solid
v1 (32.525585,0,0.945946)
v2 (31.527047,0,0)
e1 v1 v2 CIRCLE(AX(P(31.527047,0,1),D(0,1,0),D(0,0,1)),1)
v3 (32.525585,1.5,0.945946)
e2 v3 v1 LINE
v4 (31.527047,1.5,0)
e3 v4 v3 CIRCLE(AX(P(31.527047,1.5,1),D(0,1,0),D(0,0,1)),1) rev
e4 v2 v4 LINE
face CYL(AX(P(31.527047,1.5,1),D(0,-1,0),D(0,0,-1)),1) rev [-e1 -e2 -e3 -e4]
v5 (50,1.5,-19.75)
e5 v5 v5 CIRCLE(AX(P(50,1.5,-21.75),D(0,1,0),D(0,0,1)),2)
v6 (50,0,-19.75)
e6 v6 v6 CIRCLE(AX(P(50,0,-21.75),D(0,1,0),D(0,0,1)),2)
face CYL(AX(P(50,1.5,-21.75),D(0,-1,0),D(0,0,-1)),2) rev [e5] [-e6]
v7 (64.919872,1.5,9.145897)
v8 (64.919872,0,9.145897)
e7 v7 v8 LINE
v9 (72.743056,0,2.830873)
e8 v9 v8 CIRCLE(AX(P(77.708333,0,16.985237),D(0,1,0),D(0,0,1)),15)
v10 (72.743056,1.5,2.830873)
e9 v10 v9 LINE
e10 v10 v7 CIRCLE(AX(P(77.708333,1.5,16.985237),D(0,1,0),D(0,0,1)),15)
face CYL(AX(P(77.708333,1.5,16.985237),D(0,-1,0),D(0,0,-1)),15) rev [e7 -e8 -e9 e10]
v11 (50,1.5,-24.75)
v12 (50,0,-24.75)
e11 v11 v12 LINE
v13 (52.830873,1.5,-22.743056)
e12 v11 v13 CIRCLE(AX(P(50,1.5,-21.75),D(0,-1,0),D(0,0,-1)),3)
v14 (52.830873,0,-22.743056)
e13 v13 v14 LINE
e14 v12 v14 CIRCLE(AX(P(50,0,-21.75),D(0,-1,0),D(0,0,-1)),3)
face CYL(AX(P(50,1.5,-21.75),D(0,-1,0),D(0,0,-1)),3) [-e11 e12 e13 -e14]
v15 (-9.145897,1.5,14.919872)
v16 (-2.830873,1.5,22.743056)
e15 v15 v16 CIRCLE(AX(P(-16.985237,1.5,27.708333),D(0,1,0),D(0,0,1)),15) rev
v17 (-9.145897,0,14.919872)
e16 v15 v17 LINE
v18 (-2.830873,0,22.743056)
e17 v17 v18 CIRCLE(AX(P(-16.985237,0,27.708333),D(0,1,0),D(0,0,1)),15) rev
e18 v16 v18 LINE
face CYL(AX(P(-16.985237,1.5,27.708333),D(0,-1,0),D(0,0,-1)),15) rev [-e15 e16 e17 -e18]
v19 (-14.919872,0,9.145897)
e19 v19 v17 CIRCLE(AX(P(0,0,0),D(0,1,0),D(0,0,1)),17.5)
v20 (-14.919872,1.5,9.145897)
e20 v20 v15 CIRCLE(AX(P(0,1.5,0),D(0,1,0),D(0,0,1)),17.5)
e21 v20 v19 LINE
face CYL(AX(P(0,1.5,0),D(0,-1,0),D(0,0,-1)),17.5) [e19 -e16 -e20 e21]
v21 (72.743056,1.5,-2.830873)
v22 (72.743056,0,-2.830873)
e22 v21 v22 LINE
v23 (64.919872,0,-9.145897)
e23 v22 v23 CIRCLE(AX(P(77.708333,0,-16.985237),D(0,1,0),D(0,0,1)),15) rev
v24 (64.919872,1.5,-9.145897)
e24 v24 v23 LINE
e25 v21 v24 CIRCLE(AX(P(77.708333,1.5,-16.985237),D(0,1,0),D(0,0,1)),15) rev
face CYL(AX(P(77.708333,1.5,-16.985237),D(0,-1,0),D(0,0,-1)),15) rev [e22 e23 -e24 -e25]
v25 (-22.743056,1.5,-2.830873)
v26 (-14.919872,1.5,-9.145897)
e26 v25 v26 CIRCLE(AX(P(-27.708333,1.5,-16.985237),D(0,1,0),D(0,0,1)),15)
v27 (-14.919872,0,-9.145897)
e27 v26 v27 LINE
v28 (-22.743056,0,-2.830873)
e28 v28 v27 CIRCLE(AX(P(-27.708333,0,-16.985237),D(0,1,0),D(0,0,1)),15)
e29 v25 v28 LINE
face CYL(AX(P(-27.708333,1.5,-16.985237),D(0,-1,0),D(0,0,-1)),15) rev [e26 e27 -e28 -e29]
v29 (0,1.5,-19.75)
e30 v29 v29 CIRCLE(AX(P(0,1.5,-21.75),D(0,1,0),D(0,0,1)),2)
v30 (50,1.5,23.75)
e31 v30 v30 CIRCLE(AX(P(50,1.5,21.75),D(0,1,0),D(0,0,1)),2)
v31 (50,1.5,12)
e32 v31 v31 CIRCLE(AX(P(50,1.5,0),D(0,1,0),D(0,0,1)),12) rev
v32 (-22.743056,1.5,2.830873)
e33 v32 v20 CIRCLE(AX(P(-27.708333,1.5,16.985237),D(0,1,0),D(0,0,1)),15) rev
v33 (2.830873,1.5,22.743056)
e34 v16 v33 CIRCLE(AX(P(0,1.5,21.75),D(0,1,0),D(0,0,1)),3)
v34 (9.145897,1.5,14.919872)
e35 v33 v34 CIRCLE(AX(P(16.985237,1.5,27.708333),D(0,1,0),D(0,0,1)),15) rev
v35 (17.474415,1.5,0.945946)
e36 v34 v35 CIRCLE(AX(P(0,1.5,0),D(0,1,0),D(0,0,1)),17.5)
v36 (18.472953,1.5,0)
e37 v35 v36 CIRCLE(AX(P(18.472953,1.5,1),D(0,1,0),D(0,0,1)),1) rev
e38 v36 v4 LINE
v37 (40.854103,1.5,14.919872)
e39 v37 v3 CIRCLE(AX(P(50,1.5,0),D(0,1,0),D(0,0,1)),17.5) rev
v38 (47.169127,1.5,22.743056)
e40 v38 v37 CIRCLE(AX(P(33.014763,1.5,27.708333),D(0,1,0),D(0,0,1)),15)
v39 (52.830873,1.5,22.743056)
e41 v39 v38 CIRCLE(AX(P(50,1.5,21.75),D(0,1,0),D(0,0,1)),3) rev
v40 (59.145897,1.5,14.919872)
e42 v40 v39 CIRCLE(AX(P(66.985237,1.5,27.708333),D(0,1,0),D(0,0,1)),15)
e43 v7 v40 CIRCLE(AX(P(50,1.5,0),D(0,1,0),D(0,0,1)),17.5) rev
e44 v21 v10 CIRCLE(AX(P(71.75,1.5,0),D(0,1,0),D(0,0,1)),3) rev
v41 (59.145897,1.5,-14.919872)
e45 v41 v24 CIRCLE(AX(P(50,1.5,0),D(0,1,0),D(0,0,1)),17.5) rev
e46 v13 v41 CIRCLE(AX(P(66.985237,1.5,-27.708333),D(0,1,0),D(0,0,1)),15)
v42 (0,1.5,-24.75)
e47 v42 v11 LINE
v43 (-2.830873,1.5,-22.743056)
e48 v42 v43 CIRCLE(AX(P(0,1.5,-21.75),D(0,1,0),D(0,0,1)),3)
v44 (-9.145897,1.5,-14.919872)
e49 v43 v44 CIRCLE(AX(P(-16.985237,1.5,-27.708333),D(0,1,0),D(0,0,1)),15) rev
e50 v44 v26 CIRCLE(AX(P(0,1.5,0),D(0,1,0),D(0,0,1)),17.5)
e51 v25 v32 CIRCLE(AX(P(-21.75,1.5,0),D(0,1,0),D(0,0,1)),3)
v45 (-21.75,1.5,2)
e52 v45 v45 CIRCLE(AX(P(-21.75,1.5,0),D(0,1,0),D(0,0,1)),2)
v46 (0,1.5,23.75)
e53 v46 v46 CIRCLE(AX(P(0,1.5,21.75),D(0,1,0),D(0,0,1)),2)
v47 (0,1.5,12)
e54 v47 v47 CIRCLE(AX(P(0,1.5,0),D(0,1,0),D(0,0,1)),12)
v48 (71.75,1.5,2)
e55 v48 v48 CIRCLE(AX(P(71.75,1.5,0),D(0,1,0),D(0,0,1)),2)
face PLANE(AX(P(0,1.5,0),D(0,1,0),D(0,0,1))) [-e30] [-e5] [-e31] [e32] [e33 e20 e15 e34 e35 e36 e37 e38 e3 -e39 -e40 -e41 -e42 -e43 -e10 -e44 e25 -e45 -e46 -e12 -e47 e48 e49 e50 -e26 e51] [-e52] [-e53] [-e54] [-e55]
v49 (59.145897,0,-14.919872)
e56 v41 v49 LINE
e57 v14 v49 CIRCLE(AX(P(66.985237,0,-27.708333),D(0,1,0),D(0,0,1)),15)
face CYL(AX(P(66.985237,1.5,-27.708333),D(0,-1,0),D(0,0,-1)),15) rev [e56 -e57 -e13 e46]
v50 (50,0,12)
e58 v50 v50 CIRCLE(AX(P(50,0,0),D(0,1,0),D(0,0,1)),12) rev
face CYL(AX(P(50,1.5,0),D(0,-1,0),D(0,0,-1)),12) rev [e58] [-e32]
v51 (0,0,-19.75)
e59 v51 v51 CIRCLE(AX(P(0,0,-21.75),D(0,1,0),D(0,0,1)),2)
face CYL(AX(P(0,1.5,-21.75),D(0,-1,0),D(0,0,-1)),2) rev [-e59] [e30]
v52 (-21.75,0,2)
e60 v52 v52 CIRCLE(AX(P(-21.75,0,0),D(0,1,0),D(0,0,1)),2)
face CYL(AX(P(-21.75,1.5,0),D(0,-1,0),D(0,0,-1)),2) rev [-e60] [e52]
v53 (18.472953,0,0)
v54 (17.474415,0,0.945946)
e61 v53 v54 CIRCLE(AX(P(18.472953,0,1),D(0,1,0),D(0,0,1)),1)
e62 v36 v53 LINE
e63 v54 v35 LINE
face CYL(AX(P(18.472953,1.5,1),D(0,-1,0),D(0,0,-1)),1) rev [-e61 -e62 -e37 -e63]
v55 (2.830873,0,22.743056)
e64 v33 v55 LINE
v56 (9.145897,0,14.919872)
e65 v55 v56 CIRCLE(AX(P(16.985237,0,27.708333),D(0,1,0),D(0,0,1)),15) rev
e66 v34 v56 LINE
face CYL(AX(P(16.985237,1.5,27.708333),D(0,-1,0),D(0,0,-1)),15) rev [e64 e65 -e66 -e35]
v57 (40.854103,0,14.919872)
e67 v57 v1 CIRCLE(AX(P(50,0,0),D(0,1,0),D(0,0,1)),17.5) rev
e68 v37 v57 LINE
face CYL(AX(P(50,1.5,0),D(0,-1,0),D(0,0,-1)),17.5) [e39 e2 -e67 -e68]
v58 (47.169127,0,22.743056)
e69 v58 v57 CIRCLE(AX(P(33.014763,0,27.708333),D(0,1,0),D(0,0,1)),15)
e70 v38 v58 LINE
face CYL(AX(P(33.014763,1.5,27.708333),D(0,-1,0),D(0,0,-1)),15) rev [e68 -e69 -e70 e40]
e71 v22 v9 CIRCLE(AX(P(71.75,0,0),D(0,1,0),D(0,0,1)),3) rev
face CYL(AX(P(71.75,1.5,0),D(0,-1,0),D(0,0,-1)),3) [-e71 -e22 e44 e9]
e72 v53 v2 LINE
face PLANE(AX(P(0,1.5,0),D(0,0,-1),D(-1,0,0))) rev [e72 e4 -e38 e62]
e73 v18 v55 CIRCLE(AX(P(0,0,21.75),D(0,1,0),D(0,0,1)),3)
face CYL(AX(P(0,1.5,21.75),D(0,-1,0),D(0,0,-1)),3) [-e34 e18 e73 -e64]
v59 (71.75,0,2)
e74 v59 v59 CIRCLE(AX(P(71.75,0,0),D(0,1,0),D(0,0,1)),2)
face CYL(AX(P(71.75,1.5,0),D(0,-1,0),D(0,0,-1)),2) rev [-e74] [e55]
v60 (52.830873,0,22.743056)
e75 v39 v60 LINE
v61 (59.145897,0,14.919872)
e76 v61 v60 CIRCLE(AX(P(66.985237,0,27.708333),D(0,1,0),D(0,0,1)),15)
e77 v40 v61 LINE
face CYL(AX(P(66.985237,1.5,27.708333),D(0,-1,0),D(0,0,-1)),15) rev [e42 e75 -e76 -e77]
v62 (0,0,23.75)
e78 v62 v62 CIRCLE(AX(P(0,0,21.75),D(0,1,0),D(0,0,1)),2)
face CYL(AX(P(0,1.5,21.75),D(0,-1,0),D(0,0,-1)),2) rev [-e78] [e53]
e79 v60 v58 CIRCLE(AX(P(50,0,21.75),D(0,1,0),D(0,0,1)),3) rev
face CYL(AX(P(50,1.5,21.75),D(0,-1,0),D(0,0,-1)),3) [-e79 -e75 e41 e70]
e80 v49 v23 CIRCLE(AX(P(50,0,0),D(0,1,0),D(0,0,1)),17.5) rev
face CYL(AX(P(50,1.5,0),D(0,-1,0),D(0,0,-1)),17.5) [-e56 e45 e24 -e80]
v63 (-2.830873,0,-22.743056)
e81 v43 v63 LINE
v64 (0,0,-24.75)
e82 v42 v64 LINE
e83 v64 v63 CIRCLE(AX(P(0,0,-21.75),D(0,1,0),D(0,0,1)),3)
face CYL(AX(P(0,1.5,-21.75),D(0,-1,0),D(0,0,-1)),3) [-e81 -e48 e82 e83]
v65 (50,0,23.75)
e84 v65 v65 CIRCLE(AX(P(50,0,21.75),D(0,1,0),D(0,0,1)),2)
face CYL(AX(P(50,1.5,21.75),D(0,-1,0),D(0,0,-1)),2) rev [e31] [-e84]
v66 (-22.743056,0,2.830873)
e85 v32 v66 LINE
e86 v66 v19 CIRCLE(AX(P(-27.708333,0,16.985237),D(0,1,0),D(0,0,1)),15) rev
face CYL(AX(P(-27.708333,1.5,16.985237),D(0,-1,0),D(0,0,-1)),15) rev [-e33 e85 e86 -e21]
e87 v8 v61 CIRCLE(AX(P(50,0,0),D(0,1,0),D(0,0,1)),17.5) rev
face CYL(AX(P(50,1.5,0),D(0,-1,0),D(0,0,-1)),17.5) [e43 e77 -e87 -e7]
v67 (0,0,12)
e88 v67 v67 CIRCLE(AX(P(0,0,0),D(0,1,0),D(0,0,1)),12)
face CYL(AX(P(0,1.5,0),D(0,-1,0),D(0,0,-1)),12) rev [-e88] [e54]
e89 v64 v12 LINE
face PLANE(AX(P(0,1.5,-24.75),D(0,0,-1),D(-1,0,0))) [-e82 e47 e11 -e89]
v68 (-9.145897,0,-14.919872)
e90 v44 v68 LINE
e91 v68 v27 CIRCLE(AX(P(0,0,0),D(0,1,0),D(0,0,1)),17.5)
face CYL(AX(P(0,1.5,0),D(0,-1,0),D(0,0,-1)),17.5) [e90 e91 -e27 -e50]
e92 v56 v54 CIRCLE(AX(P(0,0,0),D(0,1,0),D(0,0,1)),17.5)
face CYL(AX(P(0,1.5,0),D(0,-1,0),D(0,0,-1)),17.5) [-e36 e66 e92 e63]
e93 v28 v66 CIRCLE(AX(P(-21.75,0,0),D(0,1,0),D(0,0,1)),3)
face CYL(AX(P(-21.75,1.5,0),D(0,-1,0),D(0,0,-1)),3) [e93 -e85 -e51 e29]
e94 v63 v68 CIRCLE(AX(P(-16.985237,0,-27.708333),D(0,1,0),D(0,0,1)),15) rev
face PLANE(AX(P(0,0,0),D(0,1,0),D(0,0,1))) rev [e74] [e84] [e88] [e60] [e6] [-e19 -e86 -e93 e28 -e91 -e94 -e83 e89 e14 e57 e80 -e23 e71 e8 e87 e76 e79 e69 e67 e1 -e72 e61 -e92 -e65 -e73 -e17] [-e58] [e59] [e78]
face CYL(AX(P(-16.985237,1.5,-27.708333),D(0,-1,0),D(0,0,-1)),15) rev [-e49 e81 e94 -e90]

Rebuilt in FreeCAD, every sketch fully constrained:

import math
import FreeCAD as App
import Part
import Sketcher

V = App.Vector
Q = App.Units.Quantity


def edges_at(feature, points):
    """Names of the edges that pass closest to the given points."""
    edges = feature.Shape.Edges
    near = lambda p: min(range(len(edges)), key=lambda i: edges[i].distToShape(Part.Vertex(*p))[0])
    return sorted({f"Edge{near(p) + 1}" for p in points})

doc = App.newDocument("Part")
body = doc.addObject("PartDesign::Body", "Body")

# Sketch on XZ plane
sketch1 = doc.addObject("Sketcher::SketchObject", "Sketch")
body.addObject(sketch1)
sketch1.AttachmentSupport = (doc.XZ_Plane, [""])
sketch1.MapMode = "FlatFace"
sketch1.addGeometry(Part.LineSegment(V(50, -24.8, 0), V(0, -24.8, 0)), False)
sketch1.addGeometry(Part.ArcOfCircle(Part.Circle(V(0, -21.7, 0), V(0, 0, 1), 3), math.radians(-161), math.radians(-90)), False)
sketch1.addGeometry(Part.ArcOfCircle(Part.Circle(V(-17, -27.7, 0), V(0, 0, 1), 15), math.radians(19), math.radians(58)), False)
sketch1.addGeometry(Part.ArcOfCircle(Part.Circle(V(0, 0, 0), V(0, 0, 1), 17.5), math.radians(-148), math.radians(-122)), False)
sketch1.addGeometry(Part.ArcOfCircle(Part.Circle(V(-27.7, -17, 0), V(0, 0, 1), 15), math.radians(32), math.radians(71)), False)
sketch1.addGeometry(Part.ArcOfCircle(Part.Circle(V(-21.8, 0, 0), V(0, 0, 1), 3), math.radians(109), math.radians(251)), False)
sketch1.addGeometry(Part.ArcOfCircle(Part.Circle(V(-27.7, 17, 0), V(0, 0, 1), 15), math.radians(-71), math.radians(-32)), False)
sketch1.addGeometry(Part.ArcOfCircle(Part.Circle(V(0, 0, 0), V(0, 0, 1), 17.5), math.radians(122), math.radians(148)), False)
sketch1.addGeometry(Part.ArcOfCircle(Part.Circle(V(-17, 27.7, 0), V(0, 0, 1), 15), math.radians(-58), math.radians(-19)), False)
sketch1.addGeometry(Part.ArcOfCircle(Part.Circle(V(0, 21.8, 0), V(0, 0, 1), 3), math.radians(19), math.radians(161)), False)
sketch1.addGeometry(Part.ArcOfCircle(Part.Circle(V(17, 27.7, 0), V(0, 0, 1), 15), math.radians(-161), math.radians(-122)), False)
sketch1.addGeometry(Part.ArcOfCircle(Part.Circle(V(0, 0, 0), V(0, 0, 1), 17.5), math.radians(0), math.radians(58)), False)
sketch1.addGeometry(Part.LineSegment(V(17.5, 0, 0), V(32.5, 0, 0)), False)
sketch1.addGeometry(Part.ArcOfCircle(Part.Circle(V(50, 0, 0), V(0, 0, 1), 17.5), math.radians(122), math.radians(180)), False)
sketch1.addGeometry(Part.ArcOfCircle(Part.Circle(V(33, 27.7, 0), V(0, 0, 1), 15), math.radians(-58), math.radians(-19)), False)
sketch1.addGeometry(Part.ArcOfCircle(Part.Circle(V(50, 21.8, 0), V(0, 0, 1), 3), math.radians(19), math.radians(161)), False)
sketch1.addGeometry(Part.ArcOfCircle(Part.Circle(V(67, 27.7, 0), V(0, 0, 1), 15), math.radians(-161), math.radians(-122)), False)
sketch1.addGeometry(Part.ArcOfCircle(Part.Circle(V(50, 0, 0), V(0, 0, 1), 17.5), math.radians(32), math.radians(58)), False)
sketch1.addGeometry(Part.ArcOfCircle(Part.Circle(V(77.7, 17, 0), V(0, 0, 1), 15), math.radians(-148), math.radians(-109)), False)
sketch1.addGeometry(Part.ArcOfCircle(Part.Circle(V(71.8, 0, 0), V(0, 0, 1), 3), math.radians(-71), math.radians(71)), False)
sketch1.addGeometry(Part.ArcOfCircle(Part.Circle(V(77.7, -17, 0), V(0, 0, 1), 15), math.radians(109), math.radians(148)), False)
sketch1.addGeometry(Part.ArcOfCircle(Part.Circle(V(50, 0, 0), V(0, 0, 1), 17.5), math.radians(-58), math.radians(-32)), False)
sketch1.addGeometry(Part.ArcOfCircle(Part.Circle(V(67, -27.7, 0), V(0, 0, 1), 15), math.radians(122), math.radians(161)), False)
sketch1.addGeometry(Part.ArcOfCircle(Part.Circle(V(50, -21.7, 0), V(0, 0, 1), 3), math.radians(-90), math.radians(-19)), False)
sketch1.addGeometry(Part.Circle(V(0, 21.8, 0), V(0, 0, 1), 2), False)
sketch1.addGeometry(Part.Circle(V(50, 21.8, 0), V(0, 0, 1), 2), False)
sketch1.addGeometry(Part.Circle(V(-21.8, 0, 0), V(0, 0, 1), 2), False)
sketch1.addGeometry(Part.Circle(V(0, 0, 0), V(0, 0, 1), 12), False)
sketch1.addGeometry(Part.Circle(V(0, -21.8, 0), V(0, 0, 1), 2), False)
sketch1.addGeometry(Part.Circle(V(50, 0, 0), V(0, 0, 1), 12), False)
sketch1.addGeometry(Part.Circle(V(71.8, 0, 0), V(0, 0, 1), 2), False)
sketch1.addGeometry(Part.Circle(V(50, -21.8, 0), V(0, 0, 1), 2), False)
sketch1.addConstraint(Sketcher.Constraint("Tangent", 0, 2, 1, 2))
sketch1.addConstraint(Sketcher.Constraint("Tangent", 1, 1, 2, 1))
sketch1.addConstraint(Sketcher.Constraint("Tangent", 2, 2, 3, 2))
sketch1.addConstraint(Sketcher.Constraint("Tangent", 3, 1, 4, 1))
sketch1.addConstraint(Sketcher.Constraint("Tangent", 4, 2, 5, 2))
sketch1.addConstraint(Sketcher.Constraint("Tangent", 5, 1, 6, 1))
sketch1.addConstraint(Sketcher.Constraint("Tangent", 6, 2, 7, 2))
sketch1.addConstraint(Sketcher.Constraint("Tangent", 7, 1, 8, 1))
sketch1.addConstraint(Sketcher.Constraint("Tangent", 8, 2, 9, 2))
sketch1.addConstraint(Sketcher.Constraint("Tangent", 9, 1, 10, 1))
sketch1.addConstraint(Sketcher.Constraint("Tangent", 10, 2, 11, 2))
sketch1.addConstraint(Sketcher.Constraint("Coincident", 11, 1, 12, 1))
sketch1.addConstraint(Sketcher.Constraint("Coincident", 12, 2, 13, 2))
sketch1.addConstraint(Sketcher.Constraint("Tangent", 13, 1, 14, 1))
sketch1.addConstraint(Sketcher.Constraint("Tangent", 14, 2, 15, 2))
sketch1.addConstraint(Sketcher.Constraint("Tangent", 15, 1, 16, 1))
sketch1.addConstraint(Sketcher.Constraint("Tangent", 16, 2, 17, 2))
sketch1.addConstraint(Sketcher.Constraint("Tangent", 17, 1, 18, 1))
sketch1.addConstraint(Sketcher.Constraint("Tangent", 18, 2, 19, 2))
sketch1.addConstraint(Sketcher.Constraint("Tangent", 19, 1, 20, 1))
sketch1.addConstraint(Sketcher.Constraint("Tangent", 20, 2, 21, 2))
sketch1.addConstraint(Sketcher.Constraint("Tangent", 21, 1, 22, 1))
sketch1.addConstraint(Sketcher.Constraint("Tangent", 22, 2, 23, 2))
sketch1.addConstraint(Sketcher.Constraint("Tangent", 23, 1, 0, 1))
sketch1.addConstraint(Sketcher.Constraint("Horizontal", 0))
sketch1.addConstraint(Sketcher.Constraint("Horizontal", 12))
sketch1.addConstraint(Sketcher.Constraint("Coincident", 3, 3, -1, 1))
sketch1.addConstraint(Sketcher.Constraint("Coincident", 7, 3, -1, 1))
sketch1.addConstraint(Sketcher.Constraint("Coincident", 11, 3, -1, 1))
sketch1.addConstraint(Sketcher.Constraint("Coincident", 27, 3, -1, 1))
sketch1.addConstraint(Sketcher.Constraint("Coincident", 17, 3, 13, 3))
sketch1.addConstraint(Sketcher.Constraint("Coincident", 21, 3, 13, 3))
sketch1.addConstraint(Sketcher.Constraint("Coincident", 24, 3, 9, 3))
sketch1.addConstraint(Sketcher.Constraint("Coincident", 25, 3, 15, 3))
sketch1.addConstraint(Sketcher.Constraint("Coincident", 26, 3, 5, 3))
sketch1.addConstraint(Sketcher.Constraint("Coincident", 28, 3, 1, 3))
sketch1.addConstraint(Sketcher.Constraint("Coincident", 29, 3, 13, 3))
sketch1.addConstraint(Sketcher.Constraint("Coincident", 30, 3, 19, 3))
sketch1.addConstraint(Sketcher.Constraint("Coincident", 31, 3, 23, 3))
sketch1.addConstraint(Sketcher.Constraint("Equal", 2, 4))
sketch1.addConstraint(Sketcher.Constraint("Equal", 1, 5))
sketch1.addConstraint(Sketcher.Constraint("Equal", 4, 6))
sketch1.addConstraint(Sketcher.Constraint("Equal", 3, 7))
sketch1.addConstraint(Sketcher.Constraint("Equal", 6, 8))
sketch1.addConstraint(Sketcher.Constraint("Equal", 5, 9))
sketch1.addConstraint(Sketcher.Constraint("Equal", 8, 10))
sketch1.addConstraint(Sketcher.Constraint("Equal", 7, 11))
sketch1.addConstraint(Sketcher.Constraint("Equal", 11, 13))
sketch1.addConstraint(Sketcher.Constraint("Equal", 10, 14))
sketch1.addConstraint(Sketcher.Constraint("Equal", 9, 15))
sketch1.addConstraint(Sketcher.Constraint("Equal", 14, 16))
sketch1.addConstraint(Sketcher.Constraint("Equal", 13, 17))
sketch1.addConstraint(Sketcher.Constraint("Equal", 16, 18))
sketch1.addConstraint(Sketcher.Constraint("Equal", 15, 19))
sketch1.addConstraint(Sketcher.Constraint("Equal", 18, 20))
sketch1.addConstraint(Sketcher.Constraint("Equal", 17, 21))
sketch1.addConstraint(Sketcher.Constraint("Equal", 20, 22))
sketch1.addConstraint(Sketcher.Constraint("Equal", 19, 23))
sketch1.addConstraint(Sketcher.Constraint("Equal", 24, 25))
sketch1.addConstraint(Sketcher.Constraint("Equal", 25, 26))
sketch1.addConstraint(Sketcher.Constraint("Equal", 26, 28))
sketch1.addConstraint(Sketcher.Constraint("Equal", 27, 29))
sketch1.addConstraint(Sketcher.Constraint("Equal", 28, 30))
sketch1.addConstraint(Sketcher.Constraint("Equal", 30, 31))
sketch1.addConstraint(Sketcher.Constraint("Symmetric", 1, 3, 9, 3, -1, 1))
sketch1.addConstraint(Sketcher.Constraint("Symmetric", 18, 3, 20, 3, -1))
sketch1.addConstraint(Sketcher.Constraint("Symmetric", 15, 3, 23, 3, -1))
sketch1.addConstraint(Sketcher.Constraint("PointOnObject", 1, 3, -2))
sketch1.addConstraint(Sketcher.Constraint("PointOnObject", 5, 3, -1))
sketch1.addConstraint(Sketcher.Constraint("PointOnObject", 11, 1, -1))
sketch1.addConstraint(Sketcher.Constraint("Horizontal", 10, 3, 14, 3))
sketch1.addConstraint(Sketcher.Constraint("Horizontal", 6, 3, 18, 3))
sketch1.addConstraint(Sketcher.Constraint("Diameter", 24, Q("4 mm")))
sketch1.addConstraint(Sketcher.Constraint("Diameter", 27, Q("24 mm")))
sketch1.addConstraint(Sketcher.Constraint("Radius", 1, Q("3 mm")))
sketch1.addConstraint(Sketcher.Constraint("Radius", 2, Q("15 mm")))
sketch1.addConstraint(Sketcher.Constraint("Radius", 3, Q("17.5 mm")))
sketch1.addConstraint(Sketcher.Constraint("DistanceX", 0, 2, 0, 1, Q("50 mm")))
sketch1.addConstraint(Sketcher.Constraint("DistanceY", 1, 3, -1, 1, Q("21.75 mm")))
sketch1.addConstraint(Sketcher.Constraint("DistanceX", 5, 3, -1, 1, Q("21.75 mm")))
pad1 = doc.addObject("PartDesign::Pad", "Pad")
body.addObject(pad1)
pad1.Profile = sketch1
pad1.Length = 1.5
pad1.Reversed = True
doc.recompute()

fillet = doc.addObject("PartDesign::Fillet", "Fillet")
body.addObject(fillet)
fillet.Base = (pad1, edges_at(pad1, [(32.5, 0.75, 0), (17.5, 0.75, 0)]))
fillet.Radius = 1

doc.recompute()
